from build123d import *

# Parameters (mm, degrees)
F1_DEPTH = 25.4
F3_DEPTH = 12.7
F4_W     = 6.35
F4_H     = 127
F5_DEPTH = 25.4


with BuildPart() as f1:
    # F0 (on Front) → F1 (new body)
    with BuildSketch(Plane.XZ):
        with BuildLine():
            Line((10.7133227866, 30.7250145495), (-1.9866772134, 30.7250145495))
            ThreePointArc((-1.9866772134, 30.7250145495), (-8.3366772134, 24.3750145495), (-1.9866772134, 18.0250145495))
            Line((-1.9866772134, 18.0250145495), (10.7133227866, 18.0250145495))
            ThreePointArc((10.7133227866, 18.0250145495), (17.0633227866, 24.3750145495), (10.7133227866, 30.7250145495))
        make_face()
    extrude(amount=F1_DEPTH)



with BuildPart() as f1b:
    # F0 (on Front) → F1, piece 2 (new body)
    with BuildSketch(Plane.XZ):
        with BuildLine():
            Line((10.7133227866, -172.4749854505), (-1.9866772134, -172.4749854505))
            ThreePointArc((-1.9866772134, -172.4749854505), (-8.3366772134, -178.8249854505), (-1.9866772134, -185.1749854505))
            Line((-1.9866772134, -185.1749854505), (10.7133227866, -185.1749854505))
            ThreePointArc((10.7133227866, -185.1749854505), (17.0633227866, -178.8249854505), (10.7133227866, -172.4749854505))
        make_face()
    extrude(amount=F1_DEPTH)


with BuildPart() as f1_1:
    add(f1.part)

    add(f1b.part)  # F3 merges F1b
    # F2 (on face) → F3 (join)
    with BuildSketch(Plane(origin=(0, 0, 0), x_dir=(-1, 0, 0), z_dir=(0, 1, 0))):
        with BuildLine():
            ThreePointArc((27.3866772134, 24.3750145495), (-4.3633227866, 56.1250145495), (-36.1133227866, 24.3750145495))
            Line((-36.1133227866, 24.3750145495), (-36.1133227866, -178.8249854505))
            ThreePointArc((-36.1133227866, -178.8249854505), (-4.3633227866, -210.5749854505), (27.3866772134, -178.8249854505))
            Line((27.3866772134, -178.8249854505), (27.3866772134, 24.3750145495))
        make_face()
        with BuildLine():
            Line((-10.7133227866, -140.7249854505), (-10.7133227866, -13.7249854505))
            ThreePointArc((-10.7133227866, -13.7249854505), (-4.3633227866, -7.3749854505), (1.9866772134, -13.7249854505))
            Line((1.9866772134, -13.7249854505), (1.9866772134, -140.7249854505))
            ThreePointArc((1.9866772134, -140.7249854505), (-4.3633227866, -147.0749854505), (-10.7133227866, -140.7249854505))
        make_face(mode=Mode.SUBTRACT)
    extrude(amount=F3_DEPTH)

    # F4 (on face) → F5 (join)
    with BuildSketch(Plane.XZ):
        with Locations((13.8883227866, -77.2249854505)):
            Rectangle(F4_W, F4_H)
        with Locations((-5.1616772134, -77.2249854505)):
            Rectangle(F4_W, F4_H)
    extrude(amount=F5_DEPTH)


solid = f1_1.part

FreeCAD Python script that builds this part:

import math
import FreeCAD as App
import Part
import Sketcher

V = App.Vector
Q = App.Units.Quantity

doc = App.newDocument("Part")
body = doc.addObject("PartDesign::Body", "Body")

# Sketch on XZ plane
sketch1 = body.newObject("Sketcher::SketchObject", "Sketch")
sketch1.AttachmentSupport = (doc.getObject("XZ_Plane"), [""])
sketch1.MapMode = "FlatFace"
sketch1.addGeometry(Part.LineSegment(V(11, 31, 0), V(-2, 31, 0)), False)
sketch1.addGeometry(Part.ArcOfCircle(Part.Circle(V(-2, 24, 0), V(0, 0, 1), 6), math.radians(90), math.radians(270)), False)
sketch1.addGeometry(Part.LineSegment(V(-2, 18, 0), V(11, 18, 0)), False)
sketch1.addGeometry(Part.ArcOfCircle(Part.Circle(V(11, 24, 0), V(0, 0, 1), 6), math.radians(-90), math.radians(90)), False)
sketch1.addConstraint(Sketcher.Constraint("Tangent", 0, 2, 1, 1))
sketch1.addConstraint(Sketcher.Constraint("Tangent", 1, 2, 2, 1))
sketch1.addConstraint(Sketcher.Constraint("Tangent", 2, 2, 3, 1))
sketch1.addConstraint(Sketcher.Constraint("Tangent", 3, 2, 0, 1))
sketch1.addConstraint(Sketcher.Constraint("Horizontal", 0))
sketch1.addConstraint(Sketcher.Constraint("Horizontal", 2))
sketch1.addConstraint(Sketcher.Constraint("Radius", 1, Q("0.25 in")))
sketch1.addConstraint(Sketcher.Constraint("DistanceX", 0, 2, 0, 1, Q("0.5 in")))
sketch1.addConstraint(Sketcher.Constraint("DistanceX", 1, 3, -1, 1, 1.986677))
sketch1.addConstraint(Sketcher.Constraint("DistanceY", -1, 1, 1, 3, 24.375015))
pad1 = body.newObject("PartDesign::Pad", "Pad")
pad1.Profile = sketch1
pad1.Length = Q("1 in")
body2 = doc.addObject("PartDesign::Body", "Body001")

# Sketch on XZ plane
sketch2 = body2.newObject("Sketcher::SketchObject", "Sketch001")
sketch2.AttachmentSupport = (doc.getObject("XZ_Plane001"), [""])
sketch2.MapMode = "FlatFace"
sketch2.addGeometry(Part.LineSegment(V(11, -172, 0), V(-2, -172, 0)), False)
sketch2.addGeometry(Part.ArcOfCircle(Part.Circle(V(-2, -179, 0), V(0, 0, 1), 6), math.radians(90), math.radians(270)), False)
sketch2.addGeometry(Part.LineSegment(V(-2, -185, 0), V(11, -185, 0)), False)
sketch2.addGeometry(Part.ArcOfCircle(Part.Circle(V(11, -179, 0), V(0, 0, 1), 6), math.radians(-90), math.radians(90)), False)
sketch2.addConstraint(Sketcher.Constraint("Tangent", 0, 2, 1, 1))
sketch2.addConstraint(Sketcher.Constraint("Tangent", 1, 2, 2, 1))
sketch2.addConstraint(Sketcher.Constraint("Tangent", 2, 2, 3, 1))
sketch2.addConstraint(Sketcher.Constraint("Tangent", 3, 2, 0, 1))
sketch2.addConstraint(Sketcher.Constraint("Horizontal", 0))
sketch2.addConstraint(Sketcher.Constraint("Horizontal", 2))
sketch2.addConstraint(Sketcher.Constraint("Radius", 1, Q("0.25 in")))
sketch2.addConstraint(Sketcher.Constraint("DistanceX", 0, 2, 0, 1, Q("0.5 in")))
sketch2.addConstraint(Sketcher.Constraint("DistanceX", 1, 3, -1, 1, 1.986677))
sketch2.addConstraint(Sketcher.Constraint("DistanceY", 1, 3, -1, 1, 178.824985))
pad2 = body2.newObject("PartDesign::Pad", "Pad001")
pad2.Profile = sketch2
pad2.Length = Q("1 in")
body.AllowCompound = True
doc.recompute()

boolean = body.newObject("PartDesign::Boolean", "Boolean")
boolean.Type = "Fuse"
boolean.addObjects([body2])

# Sketch on XZ plane
sketch3 = body.newObject("Sketcher::SketchObject", "Sketch002")
sketch3.AttachmentSupport = (doc.getObject("XZ_Plane"), [""])
sketch3.MapMode = "FlatFace"
sketch3.addGeometry(Part.ArcOfCircle(Part.Circle(V(4, 24, 0), V(0, 0, 1), 32), math.radians(0), math.radians(180)), False)
sketch3.addGeometry(Part.LineSegment(V(36, 24, 0), V(36, -179, 0)), False)
sketch3.addGeometry(Part.ArcOfCircle(Part.Circle(V(4, -179, 0), V(0, 0, 1), 32), math.radians(180), math.radians(360)), False)
sketch3.addGeometry(Part.LineSegment(V(-27, -179, 0), V(-27, 24, 0)), False)
sketch3.addGeometry(Part.ArcOfCircle(Part.Circle(V(4, -141, 0), V(0, 0, 1), 6), math.radians(180), math.radians(360)), False)
sketch3.addGeometry(Part.LineSegment(V(11, -141, 0), V(11, -14, 0)), False)
sketch3.addGeometry(Part.ArcOfCircle(Part.Circle(V(4, -14, 0), V(0, 0, 1), 6), math.radians(0), math.radians(180)), False)
sketch3.addGeometry(Part.LineSegment(V(-2, -14, 0), V(-2, -141, 0)), False)
sketch3.addConstraint(Sketcher.Constraint("Tangent", 0, 1, 1, 1))
sketch3.addConstraint(Sketcher.Constraint("Tangent", 1, 2, 2, 2))
sketch3.addConstraint(Sketcher.Constraint("Tangent", 2, 1, 3, 1))
sketch3.addConstraint(Sketcher.Constraint("Tangent", 3, 2, 0, 2))
sketch3.addConstraint(Sketcher.Constraint("Tangent", 4, 2, 5, 1))
sketch3.addConstraint(Sketcher.Constraint("Tangent", 5, 2, 6, 1))
sketch3.addConstraint(Sketcher.Constraint("Tangent", 6, 2, 7, 1))
sketch3.addConstraint(Sketcher.Constraint("Tangent", 7, 2, 4, 1))
sketch3.addConstraint(Sketcher.Constraint("Vertical", 1))
sketch3.addConstraint(Sketcher.Constraint("Vertical", 3))
sketch3.addConstraint(Sketcher.Constraint("Vertical", 5))
sketch3.addConstraint(Sketcher.Constraint("Vertical", 7))
sketch3.addConstraint(Sketcher.Constraint("Vertical", 2, 3, 4, 3))
sketch3.addConstraint(Sketcher.Constraint("DistanceY", 1, 2, 1, 1, Q("8 in")))
sketch3.addConstraint(Sketcher.Constraint("DistanceY", 5, 1, 5, 2, Q("5 in")))
sketch3.addConstraint(Sketcher.Constraint("Radius", 0, Q("1.25 in")))
sketch3.addConstraint(Sketcher.Constraint("Radius", 4, Q("0.25 in")))
sketch3.addConstraint(Sketcher.Constraint("DistanceY", 2, 3, 4, 3, Q("1.5 in")))
sketch3.addConstraint(Sketcher.Constraint("DistanceX", -1, 1, 0, 3, 4.363323))
sketch3.addConstraint(Sketcher.Constraint("DistanceY", -1, 1, 0, 3, 24.375015))
pad3 = body.newObject("PartDesign::Pad", "Pad002")
pad3.Profile = sketch3
pad3.Length = Q("0.5 in")
pad3.Reversed = True

# Sketch on XZ plane
sketch4 = body.newObject("Sketcher::SketchObject", "Sketch003")
sketch4.AttachmentSupport = (doc.getObject("XZ_Plane"), [""])
sketch4.MapMode = "FlatFace"
sketch4.addGeometry(Part.LineSegment(V(11, -14, 0), V(11, -141, 0)), False)
sketch4.addGeometry(Part.LineSegment(V(11, -141, 0), V(17, -141, 0)), False)
sketch4.addGeometry(Part.LineSegment(V(17, -141, 0), V(17, -14, 0)), False)
sketch4.addGeometry(Part.LineSegment(V(17, -14, 0), V(11, -14, 0)), False)
sketch4.addGeometry(Part.LineSegment(V(-8, -14, 0), V(-8, -141, 0)), False)
sketch4.addGeometry(Part.LineSegment(V(-8, -141, 0), V(-2, -141, 0)), False)
sketch4.addGeometry(Part.LineSegment(V(-2, -141, 0), V(-2, -14, 0)), False)
sketch4.addGeometry(Part.LineSegment(V(-2, -14, 0), V(-8, -14, 0)), False)
sketch4.addConstraint(Sketcher.Constraint("Coincident", 0, 2, 1, 1))
sketch4.addConstraint(Sketcher.Constraint("Coincident", 1, 2, 2, 1))
sketch4.addConstraint(Sketcher.Constraint("Coincident", 2, 2, 3, 1))
sketch4.addConstraint(Sketcher.Constraint("Coincident", 3, 2, 0, 1))
sketch4.addConstraint(Sketcher.Constraint("Coincident", 4, 2, 5, 1))
sketch4.addConstraint(Sketcher.Constraint("Coincident", 5, 2, 6, 1))
sketch4.addConstraint(Sketcher.Constraint("Coincident", 6, 2, 7, 1))
sketch4.addConstraint(Sketcher.Constraint("Coincident", 7, 2, 4, 1))
sketch4.addConstraint(Sketcher.Constraint("Vertical", 0))
sketch4.addConstraint(Sketcher.Constraint("Horizontal", 1))
sketch4.addConstraint(Sketcher.Constraint("Vertical", 2))
sketch4.addConstraint(Sketcher.Constraint("Horizontal", 3))
sketch4.addConstraint(Sketcher.Constraint("Vertical", 4))
sketch4.addConstraint(Sketcher.Constraint("Horizontal", 5))
sketch4.addConstraint(Sketcher.Constraint("Vertical", 6))
sketch4.addConstraint(Sketcher.Constraint("Horizontal", 7))
sketch4.addConstraint(Sketcher.Constraint("Horizontal", 1, 2, 4, 2))
sketch4.addConstraint(Sketcher.Constraint("Horizontal", 3, 2, 6, 2))
sketch4.addConstraint(Sketcher.Constraint("Equal", 3, 5))
sketch4.addConstraint(Sketcher.Constraint("DistanceY", 0, 2, 0, 1, Q("5 in")))
sketch4.addConstraint(Sketcher.Constraint("DistanceX", 4, 2, 1, 2, Q("1 in")))
sketch4.addConstraint(Sketcher.Constraint("DistanceX", 1, 1, 1, 2, Q("0.25 in")))
sketch4.addConstraint(Sketcher.Constraint("DistanceX", -1, 1, 0, 2, 10.713323))
sketch4.addConstraint(Sketcher.Constraint("DistanceY", 0, 2, -1, 1, 140.724985))
pad4 = body.newObject("PartDesign::Pad", "Pad003")
pad4.Profile = sketch4
pad4.Length = Q("1 in")

doc.recompute()
